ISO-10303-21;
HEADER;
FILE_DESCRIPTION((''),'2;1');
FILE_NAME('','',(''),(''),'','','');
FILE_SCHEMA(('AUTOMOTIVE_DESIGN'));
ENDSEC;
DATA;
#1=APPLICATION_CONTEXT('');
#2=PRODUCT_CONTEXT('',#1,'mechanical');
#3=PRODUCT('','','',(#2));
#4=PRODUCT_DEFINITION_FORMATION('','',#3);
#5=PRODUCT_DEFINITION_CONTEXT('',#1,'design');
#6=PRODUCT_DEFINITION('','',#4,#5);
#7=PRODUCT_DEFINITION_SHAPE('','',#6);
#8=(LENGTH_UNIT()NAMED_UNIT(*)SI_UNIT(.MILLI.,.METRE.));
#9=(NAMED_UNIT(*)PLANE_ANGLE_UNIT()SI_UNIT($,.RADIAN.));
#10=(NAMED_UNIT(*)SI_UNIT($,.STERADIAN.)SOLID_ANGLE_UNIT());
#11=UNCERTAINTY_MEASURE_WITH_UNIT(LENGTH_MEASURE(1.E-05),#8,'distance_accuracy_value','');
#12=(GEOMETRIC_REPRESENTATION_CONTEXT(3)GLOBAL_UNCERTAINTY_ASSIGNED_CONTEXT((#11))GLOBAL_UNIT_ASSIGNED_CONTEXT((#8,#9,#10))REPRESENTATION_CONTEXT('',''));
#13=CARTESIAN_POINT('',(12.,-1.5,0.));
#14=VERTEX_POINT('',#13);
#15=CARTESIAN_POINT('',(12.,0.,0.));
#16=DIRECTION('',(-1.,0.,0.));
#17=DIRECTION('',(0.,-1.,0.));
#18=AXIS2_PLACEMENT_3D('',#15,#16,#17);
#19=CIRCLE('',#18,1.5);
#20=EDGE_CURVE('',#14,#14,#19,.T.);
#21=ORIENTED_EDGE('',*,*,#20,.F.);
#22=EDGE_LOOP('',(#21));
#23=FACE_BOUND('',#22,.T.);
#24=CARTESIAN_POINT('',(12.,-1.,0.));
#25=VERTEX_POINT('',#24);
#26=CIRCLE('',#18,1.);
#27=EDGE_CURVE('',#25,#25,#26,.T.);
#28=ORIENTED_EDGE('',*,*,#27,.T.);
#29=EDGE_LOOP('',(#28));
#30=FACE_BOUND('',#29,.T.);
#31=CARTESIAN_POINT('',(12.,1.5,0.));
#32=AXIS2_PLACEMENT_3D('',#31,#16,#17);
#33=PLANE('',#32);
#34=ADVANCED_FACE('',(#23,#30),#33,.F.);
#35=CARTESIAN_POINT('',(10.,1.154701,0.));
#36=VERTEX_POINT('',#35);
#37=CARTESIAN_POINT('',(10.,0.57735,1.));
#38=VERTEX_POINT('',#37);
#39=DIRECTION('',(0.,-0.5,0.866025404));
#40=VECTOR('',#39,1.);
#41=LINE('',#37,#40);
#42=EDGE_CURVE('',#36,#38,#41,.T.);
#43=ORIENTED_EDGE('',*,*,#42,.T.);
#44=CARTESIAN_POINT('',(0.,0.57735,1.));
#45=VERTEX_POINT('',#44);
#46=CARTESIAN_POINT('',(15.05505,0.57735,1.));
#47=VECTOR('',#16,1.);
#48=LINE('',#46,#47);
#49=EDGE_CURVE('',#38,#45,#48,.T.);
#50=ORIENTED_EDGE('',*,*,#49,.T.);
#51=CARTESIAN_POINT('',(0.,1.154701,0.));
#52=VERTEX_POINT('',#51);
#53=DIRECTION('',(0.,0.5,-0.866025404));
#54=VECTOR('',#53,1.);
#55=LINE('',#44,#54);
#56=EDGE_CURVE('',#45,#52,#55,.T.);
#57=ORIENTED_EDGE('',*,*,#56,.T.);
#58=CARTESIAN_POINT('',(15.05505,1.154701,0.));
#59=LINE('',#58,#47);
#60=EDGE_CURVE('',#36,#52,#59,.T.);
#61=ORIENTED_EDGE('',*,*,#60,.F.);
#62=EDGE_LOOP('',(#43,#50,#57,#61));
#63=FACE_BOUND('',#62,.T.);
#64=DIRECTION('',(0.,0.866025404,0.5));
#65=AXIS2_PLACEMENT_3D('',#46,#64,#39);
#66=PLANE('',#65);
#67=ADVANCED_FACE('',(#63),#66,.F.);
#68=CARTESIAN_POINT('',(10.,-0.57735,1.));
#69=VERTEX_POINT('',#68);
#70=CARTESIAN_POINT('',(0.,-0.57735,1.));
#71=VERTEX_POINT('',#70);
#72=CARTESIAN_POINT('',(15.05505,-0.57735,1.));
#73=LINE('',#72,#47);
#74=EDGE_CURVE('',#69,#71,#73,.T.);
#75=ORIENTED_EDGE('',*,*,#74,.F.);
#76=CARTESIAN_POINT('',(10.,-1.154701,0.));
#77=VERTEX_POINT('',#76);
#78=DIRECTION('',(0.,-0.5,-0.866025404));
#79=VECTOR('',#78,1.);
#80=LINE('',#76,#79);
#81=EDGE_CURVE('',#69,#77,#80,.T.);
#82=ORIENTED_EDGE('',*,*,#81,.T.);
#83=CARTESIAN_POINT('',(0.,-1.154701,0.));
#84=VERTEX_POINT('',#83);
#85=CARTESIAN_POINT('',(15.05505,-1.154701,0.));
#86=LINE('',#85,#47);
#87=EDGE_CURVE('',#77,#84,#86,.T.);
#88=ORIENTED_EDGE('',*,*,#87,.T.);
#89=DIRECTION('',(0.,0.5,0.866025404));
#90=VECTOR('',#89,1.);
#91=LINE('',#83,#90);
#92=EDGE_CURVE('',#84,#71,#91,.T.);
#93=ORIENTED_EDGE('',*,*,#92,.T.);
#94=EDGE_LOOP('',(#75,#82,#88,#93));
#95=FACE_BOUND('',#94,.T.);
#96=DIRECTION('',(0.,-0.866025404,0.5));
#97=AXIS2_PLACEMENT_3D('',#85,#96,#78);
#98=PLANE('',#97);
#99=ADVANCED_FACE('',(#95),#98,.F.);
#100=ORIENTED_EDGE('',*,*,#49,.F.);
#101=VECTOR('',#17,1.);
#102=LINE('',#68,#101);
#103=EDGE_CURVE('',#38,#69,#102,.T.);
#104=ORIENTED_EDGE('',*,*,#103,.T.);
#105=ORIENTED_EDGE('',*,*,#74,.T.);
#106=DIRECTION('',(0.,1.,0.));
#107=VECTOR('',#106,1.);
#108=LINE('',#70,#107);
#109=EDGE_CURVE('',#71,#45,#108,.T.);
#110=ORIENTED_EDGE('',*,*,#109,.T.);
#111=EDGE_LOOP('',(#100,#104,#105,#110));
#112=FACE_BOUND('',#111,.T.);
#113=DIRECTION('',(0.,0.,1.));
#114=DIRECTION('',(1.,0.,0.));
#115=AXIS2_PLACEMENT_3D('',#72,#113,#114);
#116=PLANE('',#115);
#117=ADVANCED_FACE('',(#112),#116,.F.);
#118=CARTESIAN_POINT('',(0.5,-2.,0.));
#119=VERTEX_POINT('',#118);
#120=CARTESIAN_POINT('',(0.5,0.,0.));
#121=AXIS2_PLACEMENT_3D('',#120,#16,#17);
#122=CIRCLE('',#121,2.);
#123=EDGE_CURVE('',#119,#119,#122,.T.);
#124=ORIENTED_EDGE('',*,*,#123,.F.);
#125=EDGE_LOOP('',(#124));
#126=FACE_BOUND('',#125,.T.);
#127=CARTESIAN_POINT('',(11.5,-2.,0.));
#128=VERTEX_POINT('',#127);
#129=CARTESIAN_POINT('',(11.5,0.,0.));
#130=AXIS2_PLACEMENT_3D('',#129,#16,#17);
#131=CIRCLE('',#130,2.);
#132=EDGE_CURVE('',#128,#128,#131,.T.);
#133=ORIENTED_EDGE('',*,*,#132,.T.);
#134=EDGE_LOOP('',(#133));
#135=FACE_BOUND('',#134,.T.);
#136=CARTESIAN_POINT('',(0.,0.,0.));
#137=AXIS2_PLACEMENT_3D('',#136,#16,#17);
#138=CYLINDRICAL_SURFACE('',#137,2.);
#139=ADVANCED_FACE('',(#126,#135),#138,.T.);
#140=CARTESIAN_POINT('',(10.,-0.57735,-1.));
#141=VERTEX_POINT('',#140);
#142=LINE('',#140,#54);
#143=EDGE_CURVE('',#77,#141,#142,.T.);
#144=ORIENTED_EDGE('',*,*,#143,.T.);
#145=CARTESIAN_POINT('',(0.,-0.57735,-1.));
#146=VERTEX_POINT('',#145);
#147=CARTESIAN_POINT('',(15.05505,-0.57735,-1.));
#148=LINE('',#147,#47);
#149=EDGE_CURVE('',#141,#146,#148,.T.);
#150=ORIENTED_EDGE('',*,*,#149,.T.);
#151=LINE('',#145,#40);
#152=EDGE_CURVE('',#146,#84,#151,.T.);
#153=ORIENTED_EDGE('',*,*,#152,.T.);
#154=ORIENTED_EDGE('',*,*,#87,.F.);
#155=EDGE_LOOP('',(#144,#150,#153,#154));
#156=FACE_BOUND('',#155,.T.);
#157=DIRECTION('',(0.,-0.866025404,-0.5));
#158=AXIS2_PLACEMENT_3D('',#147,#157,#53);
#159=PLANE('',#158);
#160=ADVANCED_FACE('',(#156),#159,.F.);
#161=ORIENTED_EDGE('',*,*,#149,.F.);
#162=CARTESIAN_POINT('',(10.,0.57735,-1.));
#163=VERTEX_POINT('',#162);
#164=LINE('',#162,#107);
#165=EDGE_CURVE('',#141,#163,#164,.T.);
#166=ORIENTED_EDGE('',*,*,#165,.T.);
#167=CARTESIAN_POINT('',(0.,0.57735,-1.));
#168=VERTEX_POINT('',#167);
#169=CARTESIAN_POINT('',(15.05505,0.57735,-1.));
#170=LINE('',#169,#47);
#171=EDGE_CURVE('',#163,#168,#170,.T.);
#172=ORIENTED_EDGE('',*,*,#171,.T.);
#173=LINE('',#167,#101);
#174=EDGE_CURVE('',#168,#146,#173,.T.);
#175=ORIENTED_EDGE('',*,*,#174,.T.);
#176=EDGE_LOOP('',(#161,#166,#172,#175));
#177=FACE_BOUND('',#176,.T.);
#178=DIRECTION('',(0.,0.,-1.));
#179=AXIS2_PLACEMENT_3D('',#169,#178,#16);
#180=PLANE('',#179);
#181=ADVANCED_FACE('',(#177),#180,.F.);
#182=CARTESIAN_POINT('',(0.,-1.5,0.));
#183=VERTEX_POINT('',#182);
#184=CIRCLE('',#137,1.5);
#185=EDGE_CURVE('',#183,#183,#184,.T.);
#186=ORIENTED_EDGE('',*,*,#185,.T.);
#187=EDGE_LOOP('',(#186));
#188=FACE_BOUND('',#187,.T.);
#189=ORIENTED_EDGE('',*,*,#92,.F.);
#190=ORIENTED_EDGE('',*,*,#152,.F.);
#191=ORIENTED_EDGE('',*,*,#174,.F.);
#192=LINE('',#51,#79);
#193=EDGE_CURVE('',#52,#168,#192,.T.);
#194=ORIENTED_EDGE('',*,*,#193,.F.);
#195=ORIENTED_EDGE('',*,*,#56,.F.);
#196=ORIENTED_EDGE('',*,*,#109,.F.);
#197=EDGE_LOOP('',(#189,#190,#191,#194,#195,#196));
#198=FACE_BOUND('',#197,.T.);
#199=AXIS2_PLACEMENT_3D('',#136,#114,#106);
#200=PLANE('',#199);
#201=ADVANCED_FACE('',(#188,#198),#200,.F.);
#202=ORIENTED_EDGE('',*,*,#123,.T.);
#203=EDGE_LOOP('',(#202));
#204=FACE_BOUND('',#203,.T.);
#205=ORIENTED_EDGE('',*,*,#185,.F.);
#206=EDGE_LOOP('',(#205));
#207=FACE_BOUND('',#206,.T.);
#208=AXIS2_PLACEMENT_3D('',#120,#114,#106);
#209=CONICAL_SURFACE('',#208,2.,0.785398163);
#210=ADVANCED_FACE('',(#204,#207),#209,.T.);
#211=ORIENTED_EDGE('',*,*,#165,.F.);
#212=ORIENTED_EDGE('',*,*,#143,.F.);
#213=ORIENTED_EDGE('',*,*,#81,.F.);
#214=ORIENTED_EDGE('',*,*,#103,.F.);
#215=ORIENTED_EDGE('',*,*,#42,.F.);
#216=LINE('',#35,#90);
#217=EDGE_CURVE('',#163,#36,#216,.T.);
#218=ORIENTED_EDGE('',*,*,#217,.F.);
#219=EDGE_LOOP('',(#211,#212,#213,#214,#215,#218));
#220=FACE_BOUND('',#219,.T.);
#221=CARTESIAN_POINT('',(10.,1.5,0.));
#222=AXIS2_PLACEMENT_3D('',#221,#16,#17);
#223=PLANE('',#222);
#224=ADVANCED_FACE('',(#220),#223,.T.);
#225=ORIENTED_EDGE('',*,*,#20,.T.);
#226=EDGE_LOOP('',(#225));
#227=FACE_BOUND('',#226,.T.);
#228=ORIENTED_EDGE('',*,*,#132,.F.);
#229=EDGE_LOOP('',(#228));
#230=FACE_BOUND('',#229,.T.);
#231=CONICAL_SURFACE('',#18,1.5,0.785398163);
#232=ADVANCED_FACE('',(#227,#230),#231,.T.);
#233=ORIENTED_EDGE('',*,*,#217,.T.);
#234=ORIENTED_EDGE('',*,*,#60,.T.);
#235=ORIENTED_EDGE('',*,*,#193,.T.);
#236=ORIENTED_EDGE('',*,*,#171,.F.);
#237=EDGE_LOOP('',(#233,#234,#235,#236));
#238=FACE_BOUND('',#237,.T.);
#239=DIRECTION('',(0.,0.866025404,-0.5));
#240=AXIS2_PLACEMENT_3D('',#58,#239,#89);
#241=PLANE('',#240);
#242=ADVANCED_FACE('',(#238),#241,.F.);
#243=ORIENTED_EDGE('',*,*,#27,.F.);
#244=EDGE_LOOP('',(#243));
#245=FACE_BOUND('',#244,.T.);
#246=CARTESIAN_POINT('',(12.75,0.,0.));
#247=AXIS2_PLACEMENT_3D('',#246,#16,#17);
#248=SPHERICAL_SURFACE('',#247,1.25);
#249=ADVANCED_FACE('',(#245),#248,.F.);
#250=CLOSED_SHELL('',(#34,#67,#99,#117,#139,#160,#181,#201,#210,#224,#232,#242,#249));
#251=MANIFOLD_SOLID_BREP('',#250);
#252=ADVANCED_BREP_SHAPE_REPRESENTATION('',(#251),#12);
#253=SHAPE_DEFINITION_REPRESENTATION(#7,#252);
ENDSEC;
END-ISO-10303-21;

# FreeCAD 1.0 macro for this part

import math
import FreeCAD as App
import Part
import Sketcher

V = App.Vector
Q = App.Units.Quantity

doc = App.newDocument("Part")
body = doc.addObject("PartDesign::Body", "Body")

sketch1 = body.newObject("Sketcher::SketchObject", "Sketch")
sketch1.AttachmentSupport = (doc.getObject("XY_Plane"), [""])
sketch1.MapMode = "FlatFace"
sketch1.addGeometry([
    Part.LineSegment(V(0, 1.5, 0), V(0, 0, 0)),
    Part.LineSegment(V(0, 0, 0), V(11.5, 0, 0)),
    Part.ArcOfCircle(Part.Circle(V(12.8, 0, 0), V(0, 0, 1), 1.2), math.radians(127), math.radians(180)),
    Part.LineSegment(V(12, 1, 0), V(12, 1.5, 0)),
    Part.LineSegment(V(12, 1.5, 0), V(11.5, 2, 0)),
    Part.LineSegment(V(11.5, 2, 0), V(0.5, 2, 0)),
    Part.LineSegment(V(0.5, 2, 0), V(0, 1.5, 0)),
], False)
sketch1.addConstraint([
    Sketcher.Constraint("Coincident", 0, 2, 1, 1),
    Sketcher.Constraint("Coincident", 1, 2, 2, 2),
    Sketcher.Constraint("Coincident", 2, 1, 3, 1),
    Sketcher.Constraint("Coincident", 3, 2, 4, 1),
    Sketcher.Constraint("Coincident", 4, 2, 5, 1),
    Sketcher.Constraint("Coincident", 5, 2, 6, 1),
    Sketcher.Constraint("Coincident", 6, 2, 0, 1),
    Sketcher.Constraint("Vertical", 0),
    Sketcher.Constraint("Horizontal", 1),
    Sketcher.Constraint("Vertical", 3),
    Sketcher.Constraint("Horizontal", 5),
    Sketcher.Constraint("Coincident", 0, 2, -1, 1),
    Sketcher.Constraint("PointOnObject", 2, 3, -1),
    Sketcher.Constraint("Perpendicular", 4, 6),
    Sketcher.Constraint("Horizontal", 3, 2, 6, 2),
    Sketcher.Constraint("Vertical", 1, 2, 4, 2),
    Sketcher.Constraint("Equal", 4, 6),
    Sketcher.Constraint("DistanceX", 5, 2, 5, 1, Q("11 mm")),
    Sketcher.Constraint("Radius", 2, Q("1.25 mm")),
    Sketcher.Constraint("DistanceX", 1, 1, 1, 2, Q("11.5 mm")),
    Sketcher.Constraint("DistanceY", 0, 2, 0, 1, Q("1.5 mm")),
])
revolution = body.newObject("PartDesign::Revolution", "Revolution")
revolution.Profile = sketch1
revolution.ReferenceAxis = (sketch1, ["H_Axis"])
revolution.Angle = 360

sketch2 = body.newObject("Sketcher::SketchObject", "Sketch001")
sketch2.AttachmentSupport = (doc.getObject("YZ_Plane"), [""])
sketch2.MapMode = "FlatFace"
sketch2.addGeometry([
    Part.LineSegment(V(1.2, 0, 0), V(0.6, -1, 0)),
    Part.LineSegment(V(0.6, -1, 0), V(-0.6, -1, 0)),
    Part.LineSegment(V(-0.6, -1, 0), V(-1.2, 0, 0)),
    Part.LineSegment(V(-1.2, 0, 0), V(-0.6, 1, 0)),
    Part.LineSegment(V(-0.6, 1, 0), V(0.6, 1, 0)),
    Part.LineSegment(V(0.6, 1, 0), V(1.2, 0, 0)),
], False)
sketch2.addConstraint([
    Sketcher.Constraint("Coincident", 0, 2, 1, 1),
    Sketcher.Constraint("Coincident", 1, 2, 2, 1),
    Sketcher.Constraint("Coincident", 2, 2, 3, 1),
    Sketcher.Constraint("Coincident", 3, 2, 4, 1),
    Sketcher.Constraint("Coincident", 4, 2, 5, 1),
    Sketcher.Constraint("Coincident", 5, 2, 0, 1),
    Sketcher.Constraint("Horizontal", 1),
    Sketcher.Constraint("Horizontal", 4),
    Sketcher.Constraint("Symmetric", 0, 2, 3, 2, -1, 1),
    Sketcher.Constraint("Symmetric", 2, 2, 5, 2, -1, 1),
    Sketcher.Constraint("PointOnObject", 2, 2, -1),
    Sketcher.Constraint("Parallel", 2, 5),
    Sketcher.Constraint("Vertical", 1, 2, 3, 2),
    Sketcher.Constraint("Angle", 0, Q("-120 deg")),
    Sketcher.Constraint("DistanceY", 0, 2, -1, 1, Q("1 mm")),
    Sketcher.Constraint("DistanceX", 1, 2, 1, 1, Q("1.154701 mm")),
])
pocket1 = body.newObject("PartDesign::Pocket", "Pocket")
pocket1.Profile = sketch2
pocket1.Length = 10
pocket1.Reversed = True

doc.recompute()
